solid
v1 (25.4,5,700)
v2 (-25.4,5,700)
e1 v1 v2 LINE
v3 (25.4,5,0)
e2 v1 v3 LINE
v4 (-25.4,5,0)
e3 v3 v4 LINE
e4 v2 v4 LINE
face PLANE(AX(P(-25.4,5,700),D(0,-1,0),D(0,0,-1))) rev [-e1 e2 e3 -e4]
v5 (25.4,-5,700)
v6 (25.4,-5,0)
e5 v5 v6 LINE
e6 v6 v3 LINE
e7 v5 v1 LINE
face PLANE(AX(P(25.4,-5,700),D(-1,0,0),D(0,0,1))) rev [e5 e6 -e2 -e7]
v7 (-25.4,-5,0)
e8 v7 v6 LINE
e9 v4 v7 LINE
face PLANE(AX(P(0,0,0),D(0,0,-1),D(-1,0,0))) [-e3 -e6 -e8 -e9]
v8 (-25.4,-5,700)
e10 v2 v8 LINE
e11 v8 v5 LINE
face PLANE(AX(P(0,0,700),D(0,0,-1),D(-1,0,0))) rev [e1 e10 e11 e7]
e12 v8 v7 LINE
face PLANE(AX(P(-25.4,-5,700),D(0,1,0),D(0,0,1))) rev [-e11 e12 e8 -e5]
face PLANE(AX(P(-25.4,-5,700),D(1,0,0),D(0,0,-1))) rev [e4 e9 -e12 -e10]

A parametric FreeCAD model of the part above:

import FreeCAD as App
import Part
import Sketcher

V = App.Vector


def add_polygon(sketch, points):
    """Adds a closed chain of lines whose ends are joined by coincident constraints."""
    first, n = sketch.GeometryCount, len(points)
    for a, b in zip(points, points[1:] + points[:1]):
        sketch.addGeometry(Part.LineSegment(App.Vector(*a, 0), App.Vector(*b, 0)), False)
    for i in range(n):
        sketch.addConstraint(Sketcher.Constraint("Coincident", first + i, 2, first + (i + 1) % n, 1))

doc = App.newDocument("Part")
body = doc.addObject("PartDesign::Body", "Body")

sketch1 = doc.addObject("Sketcher::SketchObject", "Sketch")
body.addObject(sketch1)
sketch1.AttachmentSupport = (doc.XY_Plane, [""])
sketch1.MapMode = "FlatFace"
add_polygon(sketch1, [(-25, 5), (-25, -5), (25, -5), (25, 5)])
sketch1.addConstraint(Sketcher.Constraint("Vertical", 0))
sketch1.addConstraint(Sketcher.Constraint("Horizontal", 1))
sketch1.addConstraint(Sketcher.Constraint("Vertical", 2))
sketch1.addConstraint(Sketcher.Constraint("Horizontal", 3))
sketch1.addConstraint(Sketcher.Constraint("Symmetric", 0, 2, 2, 2, -1, 1))
sketch1.addConstraint(Sketcher.Constraint("DistanceY", 0, 2, 0, 1, 10.0))
sketch1.addConstraint(Sketcher.Constraint("DistanceX", 1, 1, 1, 2, 50.8))
pad1 = doc.addObject("PartDesign::Pad", "Pad")
body.addObject(pad1)
pad1.Profile = sketch1
pad1.Length = 700

doc.recompute()
